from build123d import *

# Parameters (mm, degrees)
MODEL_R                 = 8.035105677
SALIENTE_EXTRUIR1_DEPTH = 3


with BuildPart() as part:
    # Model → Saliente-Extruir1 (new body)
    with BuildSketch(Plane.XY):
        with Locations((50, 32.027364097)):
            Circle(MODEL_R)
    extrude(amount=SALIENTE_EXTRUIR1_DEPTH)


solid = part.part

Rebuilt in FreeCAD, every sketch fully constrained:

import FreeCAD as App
import Part
import Sketcher
from FreeCAD import Vector

doc = App.newDocument("Part")
params = doc.addObject("Spreadsheet::Sheet", "Params")
for row, (alias, value) in enumerate([
    ("pad1_length", "3 mm"),
], start=1):
    params.set(f"A{row}", alias)
    params.set(f"B{row}", "=" + value)
    params.setAlias(f"B{row}", alias)

body = doc.addObject("PartDesign::Body", "Body")

# Sketch on XY plane
sketch1 = body.newObject("Sketcher::SketchObject", "Sketch")
sketch1.AttachmentSupport = (doc.getObject("XY_Plane"), [""])
sketch1.MapMode = "FlatFace"
sketch1.addGeometry(Part.Circle(Vector(50, 32, 0), Vector(0, 0, 1), 8), False)
sketch1.addConstraint(Sketcher.Constraint("DistanceX", -1, 1, 0, 3, 50.0))
sketch1.addConstraint(Sketcher.Constraint("Diameter", 0, 16.070211))
sketch1.addConstraint(Sketcher.Constraint("DistanceY", -1, 1, 0, 3, 32.027364))
pad1 = body.newObject("PartDesign::Pad", "Pad")
pad1.Profile = sketch1
pad1.setExpression("Length", "Params.pad1_length")

doc.recompute()
